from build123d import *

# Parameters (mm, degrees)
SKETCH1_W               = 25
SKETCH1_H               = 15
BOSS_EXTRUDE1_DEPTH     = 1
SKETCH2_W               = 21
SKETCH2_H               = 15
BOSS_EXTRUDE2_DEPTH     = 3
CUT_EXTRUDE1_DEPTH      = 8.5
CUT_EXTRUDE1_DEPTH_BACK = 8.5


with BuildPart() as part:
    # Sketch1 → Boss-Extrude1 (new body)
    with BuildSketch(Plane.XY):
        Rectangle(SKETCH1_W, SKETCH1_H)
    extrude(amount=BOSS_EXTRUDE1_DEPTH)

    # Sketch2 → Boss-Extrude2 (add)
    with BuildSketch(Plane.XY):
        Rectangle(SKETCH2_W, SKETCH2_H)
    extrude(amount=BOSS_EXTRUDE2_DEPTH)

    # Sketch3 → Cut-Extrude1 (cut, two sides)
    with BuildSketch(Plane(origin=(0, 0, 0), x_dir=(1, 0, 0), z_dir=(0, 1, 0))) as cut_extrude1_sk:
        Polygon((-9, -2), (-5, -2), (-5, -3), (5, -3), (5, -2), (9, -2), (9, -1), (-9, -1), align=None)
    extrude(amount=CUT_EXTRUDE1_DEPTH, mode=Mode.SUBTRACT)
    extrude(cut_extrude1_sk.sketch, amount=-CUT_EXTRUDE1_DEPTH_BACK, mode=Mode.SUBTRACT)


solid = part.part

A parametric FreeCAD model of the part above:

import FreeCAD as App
import Part
import Sketcher
from FreeCAD import Vector
Q = App.Units.Quantity

doc = App.newDocument("Part")
params = doc.addObject("Spreadsheet::Sheet", "Params")
for row, (alias, value) in enumerate([
    ("sketch1_width", "25 mm"),
    ("sketch1_height", "15 mm"),
    ("pad1_length", "1 mm"),
    ("sketch2_width", "21 mm"),
    ("sketch2_height", "15 mm"),
    ("pad2_length", "3 mm"),
    ("sketch3_width", "4 mm"),
    ("sketch3_width2", "10 mm"),
    ("sketch3_height", "1 mm"),
], start=1):
    params.set(f"A{row}", alias)
    params.set(f"B{row}", "=" + value)
    params.setAlias(f"B{row}", alias)

body = doc.addObject("PartDesign::Body", "Body")

# Sketch on XY plane
sketch1 = body.newObject("Sketcher::SketchObject", "Sketch")
sketch1.AttachmentSupport = (doc.getObject("XY_Plane"), [""])
sketch1.MapMode = "FlatFace"
sketch1.addGeometry([
    Part.LineSegment(Vector(-12, 8, 0), Vector(-12, -8, 0)),
    Part.LineSegment(Vector(-12, -8, 0), Vector(12, -8, 0)),
    Part.LineSegment(Vector(12, -8, 0), Vector(12, 8, 0)),
    Part.LineSegment(Vector(12, 8, 0), Vector(-12, 8, 0)),
], False)
sketch1.addConstraint([
    Sketcher.Constraint("Coincident", 0, 2, 1, 1),
    Sketcher.Constraint("Coincident", 1, 2, 2, 1),
    Sketcher.Constraint("Coincident", 2, 2, 3, 1),
    Sketcher.Constraint("Coincident", 3, 2, 0, 1),
    Sketcher.Constraint("Vertical", 0),
    Sketcher.Constraint("Horizontal", 1),
    Sketcher.Constraint("Vertical", 2),
    Sketcher.Constraint("Horizontal", 3),
    Sketcher.Constraint("Symmetric", 0, 2, 2, 2, -1, 1),
    Sketcher.Constraint("DistanceX", 1, 1, 1, 2, Q("25 mm")),
    Sketcher.Constraint("DistanceY", 0, 2, 0, 1, Q("15 mm")),
])
sketch1.setExpression("Constraints[9]", "Params.sketch1_width")
sketch1.setExpression("Constraints[10]", "Params.sketch1_height")
pad1 = body.newObject("PartDesign::Pad", "Pad")
pad1.Profile = sketch1
pad1.setExpression("Length", "Params.pad1_length")

# Sketch on XY plane
sketch2 = body.newObject("Sketcher::SketchObject", "Sketch001")
sketch2.AttachmentSupport = (doc.getObject("XY_Plane"), [""])
sketch2.MapMode = "FlatFace"
sketch2.addGeometry([
    Part.LineSegment(Vector(-10, 8, 0), Vector(-10, -8, 0)),
    Part.LineSegment(Vector(-10, -8, 0), Vector(10, -8, 0)),
    Part.LineSegment(Vector(10, -8, 0), Vector(10, 8, 0)),
    Part.LineSegment(Vector(10, 8, 0), Vector(-10, 8, 0)),
], False)
sketch2.addConstraint([
    Sketcher.Constraint("Coincident", 0, 2, 1, 1),
    Sketcher.Constraint("Coincident", 1, 2, 2, 1),
    Sketcher.Constraint("Coincident", 2, 2, 3, 1),
    Sketcher.Constraint("Coincident", 3, 2, 0, 1),
    Sketcher.Constraint("Vertical", 0),
    Sketcher.Constraint("Horizontal", 1),
    Sketcher.Constraint("Vertical", 2),
    Sketcher.Constraint("Horizontal", 3),
    Sketcher.Constraint("Symmetric", 0, 2, 2, 2, -1, 1),
    Sketcher.Constraint("DistanceX", 1, 1, 1, 2, Q("21 mm")),
    Sketcher.Constraint("DistanceY", 0, 2, 0, 1, Q("15 mm")),
])
sketch2.setExpression("Constraints[9]", "Params.sketch2_width")
sketch2.setExpression("Constraints[10]", "Params.sketch2_height")
pad2 = body.newObject("PartDesign::Pad", "Pad001")
pad2.Profile = sketch2
pad2.setExpression("Length", "Params.pad2_length")

# Sketch on XZ plane
sketch3 = body.newObject("Sketcher::SketchObject", "Sketch002")
sketch3.AttachmentSupport = (doc.getObject("XZ_Plane"), [""])
sketch3.MapMode = "FlatFace"
sketch3.addGeometry([
    Part.LineSegment(Vector(-9, 2, 0), Vector(-5, 2, 0)),  # 0
    Part.LineSegment(Vector(-5, 2, 0), Vector(-5, 3, 0)),  # 1
    Part.LineSegment(Vector(-5, 3, 0), Vector(5, 3, 0)),  # 2
    Part.LineSegment(Vector(5, 3, 0), Vector(5, 2, 0)),  # 3
    Part.LineSegment(Vector(5, 2, 0), Vector(9, 2, 0)),  # 4
    Part.LineSegment(Vector(9, 2, 0), Vector(9, 1, 0)),  # 5
    Part.LineSegment(Vector(9, 1, 0), Vector(-9, 1, 0)),  # 6
    Part.LineSegment(Vector(-9, 1, 0), Vector(-9, 2, 0)),  # 7
], False)
sketch3.addConstraint([
    Sketcher.Constraint("Coincident", 0, 2, 1, 1),
    Sketcher.Constraint("Coincident", 1, 2, 2, 1),
    Sketcher.Constraint("Coincident", 2, 2, 3, 1),
    Sketcher.Constraint("Coincident", 3, 2, 4, 1),
    Sketcher.Constraint("Coincident", 4, 2, 5, 1),
    Sketcher.Constraint("Coincident", 5, 2, 6, 1),
    Sketcher.Constraint("Coincident", 6, 2, 7, 1),
    Sketcher.Constraint("Coincident", 7, 2, 0, 1),
    Sketcher.Constraint("Horizontal", 0),
    Sketcher.Constraint("Vertical", 1),
    Sketcher.Constraint("Horizontal", 2),
    Sketcher.Constraint("Vertical", 3),
    Sketcher.Constraint("Horizontal", 4),
    Sketcher.Constraint("Vertical", 5),
    Sketcher.Constraint("Horizontal", 6),
    Sketcher.Constraint("Vertical", 7),
    Sketcher.Constraint("Symmetric", 0, 2, 3, 2, -2),
    Sketcher.Constraint("Equal", 0, 4),
    Sketcher.Constraint("Equal", 3, 5),
    Sketcher.Constraint("DistanceX", 0, 1, 0, 2, Q("4 mm")),
    Sketcher.Constraint("DistanceX", 2, 1, 2, 2, Q("10 mm")),
    Sketcher.Constraint("DistanceY", 1, 1, 1, 2, Q("1 mm")),
    Sketcher.Constraint("DistanceY", -1, 1, 0, 2, Q("2 mm")),
])
sketch3.setExpression("Constraints[19]", "Params.sketch3_width")
sketch3.setExpression("Constraints[20]", "Params.sketch3_width2")
sketch3.setExpression("Constraints[21]", "Params.sketch3_height")
pocket1 = body.newObject("PartDesign::Pocket", "Pocket")
pocket1.Profile = sketch3
pocket1.Type = "ThroughAll"
pocket1.Midplane = True

doc.recompute()
